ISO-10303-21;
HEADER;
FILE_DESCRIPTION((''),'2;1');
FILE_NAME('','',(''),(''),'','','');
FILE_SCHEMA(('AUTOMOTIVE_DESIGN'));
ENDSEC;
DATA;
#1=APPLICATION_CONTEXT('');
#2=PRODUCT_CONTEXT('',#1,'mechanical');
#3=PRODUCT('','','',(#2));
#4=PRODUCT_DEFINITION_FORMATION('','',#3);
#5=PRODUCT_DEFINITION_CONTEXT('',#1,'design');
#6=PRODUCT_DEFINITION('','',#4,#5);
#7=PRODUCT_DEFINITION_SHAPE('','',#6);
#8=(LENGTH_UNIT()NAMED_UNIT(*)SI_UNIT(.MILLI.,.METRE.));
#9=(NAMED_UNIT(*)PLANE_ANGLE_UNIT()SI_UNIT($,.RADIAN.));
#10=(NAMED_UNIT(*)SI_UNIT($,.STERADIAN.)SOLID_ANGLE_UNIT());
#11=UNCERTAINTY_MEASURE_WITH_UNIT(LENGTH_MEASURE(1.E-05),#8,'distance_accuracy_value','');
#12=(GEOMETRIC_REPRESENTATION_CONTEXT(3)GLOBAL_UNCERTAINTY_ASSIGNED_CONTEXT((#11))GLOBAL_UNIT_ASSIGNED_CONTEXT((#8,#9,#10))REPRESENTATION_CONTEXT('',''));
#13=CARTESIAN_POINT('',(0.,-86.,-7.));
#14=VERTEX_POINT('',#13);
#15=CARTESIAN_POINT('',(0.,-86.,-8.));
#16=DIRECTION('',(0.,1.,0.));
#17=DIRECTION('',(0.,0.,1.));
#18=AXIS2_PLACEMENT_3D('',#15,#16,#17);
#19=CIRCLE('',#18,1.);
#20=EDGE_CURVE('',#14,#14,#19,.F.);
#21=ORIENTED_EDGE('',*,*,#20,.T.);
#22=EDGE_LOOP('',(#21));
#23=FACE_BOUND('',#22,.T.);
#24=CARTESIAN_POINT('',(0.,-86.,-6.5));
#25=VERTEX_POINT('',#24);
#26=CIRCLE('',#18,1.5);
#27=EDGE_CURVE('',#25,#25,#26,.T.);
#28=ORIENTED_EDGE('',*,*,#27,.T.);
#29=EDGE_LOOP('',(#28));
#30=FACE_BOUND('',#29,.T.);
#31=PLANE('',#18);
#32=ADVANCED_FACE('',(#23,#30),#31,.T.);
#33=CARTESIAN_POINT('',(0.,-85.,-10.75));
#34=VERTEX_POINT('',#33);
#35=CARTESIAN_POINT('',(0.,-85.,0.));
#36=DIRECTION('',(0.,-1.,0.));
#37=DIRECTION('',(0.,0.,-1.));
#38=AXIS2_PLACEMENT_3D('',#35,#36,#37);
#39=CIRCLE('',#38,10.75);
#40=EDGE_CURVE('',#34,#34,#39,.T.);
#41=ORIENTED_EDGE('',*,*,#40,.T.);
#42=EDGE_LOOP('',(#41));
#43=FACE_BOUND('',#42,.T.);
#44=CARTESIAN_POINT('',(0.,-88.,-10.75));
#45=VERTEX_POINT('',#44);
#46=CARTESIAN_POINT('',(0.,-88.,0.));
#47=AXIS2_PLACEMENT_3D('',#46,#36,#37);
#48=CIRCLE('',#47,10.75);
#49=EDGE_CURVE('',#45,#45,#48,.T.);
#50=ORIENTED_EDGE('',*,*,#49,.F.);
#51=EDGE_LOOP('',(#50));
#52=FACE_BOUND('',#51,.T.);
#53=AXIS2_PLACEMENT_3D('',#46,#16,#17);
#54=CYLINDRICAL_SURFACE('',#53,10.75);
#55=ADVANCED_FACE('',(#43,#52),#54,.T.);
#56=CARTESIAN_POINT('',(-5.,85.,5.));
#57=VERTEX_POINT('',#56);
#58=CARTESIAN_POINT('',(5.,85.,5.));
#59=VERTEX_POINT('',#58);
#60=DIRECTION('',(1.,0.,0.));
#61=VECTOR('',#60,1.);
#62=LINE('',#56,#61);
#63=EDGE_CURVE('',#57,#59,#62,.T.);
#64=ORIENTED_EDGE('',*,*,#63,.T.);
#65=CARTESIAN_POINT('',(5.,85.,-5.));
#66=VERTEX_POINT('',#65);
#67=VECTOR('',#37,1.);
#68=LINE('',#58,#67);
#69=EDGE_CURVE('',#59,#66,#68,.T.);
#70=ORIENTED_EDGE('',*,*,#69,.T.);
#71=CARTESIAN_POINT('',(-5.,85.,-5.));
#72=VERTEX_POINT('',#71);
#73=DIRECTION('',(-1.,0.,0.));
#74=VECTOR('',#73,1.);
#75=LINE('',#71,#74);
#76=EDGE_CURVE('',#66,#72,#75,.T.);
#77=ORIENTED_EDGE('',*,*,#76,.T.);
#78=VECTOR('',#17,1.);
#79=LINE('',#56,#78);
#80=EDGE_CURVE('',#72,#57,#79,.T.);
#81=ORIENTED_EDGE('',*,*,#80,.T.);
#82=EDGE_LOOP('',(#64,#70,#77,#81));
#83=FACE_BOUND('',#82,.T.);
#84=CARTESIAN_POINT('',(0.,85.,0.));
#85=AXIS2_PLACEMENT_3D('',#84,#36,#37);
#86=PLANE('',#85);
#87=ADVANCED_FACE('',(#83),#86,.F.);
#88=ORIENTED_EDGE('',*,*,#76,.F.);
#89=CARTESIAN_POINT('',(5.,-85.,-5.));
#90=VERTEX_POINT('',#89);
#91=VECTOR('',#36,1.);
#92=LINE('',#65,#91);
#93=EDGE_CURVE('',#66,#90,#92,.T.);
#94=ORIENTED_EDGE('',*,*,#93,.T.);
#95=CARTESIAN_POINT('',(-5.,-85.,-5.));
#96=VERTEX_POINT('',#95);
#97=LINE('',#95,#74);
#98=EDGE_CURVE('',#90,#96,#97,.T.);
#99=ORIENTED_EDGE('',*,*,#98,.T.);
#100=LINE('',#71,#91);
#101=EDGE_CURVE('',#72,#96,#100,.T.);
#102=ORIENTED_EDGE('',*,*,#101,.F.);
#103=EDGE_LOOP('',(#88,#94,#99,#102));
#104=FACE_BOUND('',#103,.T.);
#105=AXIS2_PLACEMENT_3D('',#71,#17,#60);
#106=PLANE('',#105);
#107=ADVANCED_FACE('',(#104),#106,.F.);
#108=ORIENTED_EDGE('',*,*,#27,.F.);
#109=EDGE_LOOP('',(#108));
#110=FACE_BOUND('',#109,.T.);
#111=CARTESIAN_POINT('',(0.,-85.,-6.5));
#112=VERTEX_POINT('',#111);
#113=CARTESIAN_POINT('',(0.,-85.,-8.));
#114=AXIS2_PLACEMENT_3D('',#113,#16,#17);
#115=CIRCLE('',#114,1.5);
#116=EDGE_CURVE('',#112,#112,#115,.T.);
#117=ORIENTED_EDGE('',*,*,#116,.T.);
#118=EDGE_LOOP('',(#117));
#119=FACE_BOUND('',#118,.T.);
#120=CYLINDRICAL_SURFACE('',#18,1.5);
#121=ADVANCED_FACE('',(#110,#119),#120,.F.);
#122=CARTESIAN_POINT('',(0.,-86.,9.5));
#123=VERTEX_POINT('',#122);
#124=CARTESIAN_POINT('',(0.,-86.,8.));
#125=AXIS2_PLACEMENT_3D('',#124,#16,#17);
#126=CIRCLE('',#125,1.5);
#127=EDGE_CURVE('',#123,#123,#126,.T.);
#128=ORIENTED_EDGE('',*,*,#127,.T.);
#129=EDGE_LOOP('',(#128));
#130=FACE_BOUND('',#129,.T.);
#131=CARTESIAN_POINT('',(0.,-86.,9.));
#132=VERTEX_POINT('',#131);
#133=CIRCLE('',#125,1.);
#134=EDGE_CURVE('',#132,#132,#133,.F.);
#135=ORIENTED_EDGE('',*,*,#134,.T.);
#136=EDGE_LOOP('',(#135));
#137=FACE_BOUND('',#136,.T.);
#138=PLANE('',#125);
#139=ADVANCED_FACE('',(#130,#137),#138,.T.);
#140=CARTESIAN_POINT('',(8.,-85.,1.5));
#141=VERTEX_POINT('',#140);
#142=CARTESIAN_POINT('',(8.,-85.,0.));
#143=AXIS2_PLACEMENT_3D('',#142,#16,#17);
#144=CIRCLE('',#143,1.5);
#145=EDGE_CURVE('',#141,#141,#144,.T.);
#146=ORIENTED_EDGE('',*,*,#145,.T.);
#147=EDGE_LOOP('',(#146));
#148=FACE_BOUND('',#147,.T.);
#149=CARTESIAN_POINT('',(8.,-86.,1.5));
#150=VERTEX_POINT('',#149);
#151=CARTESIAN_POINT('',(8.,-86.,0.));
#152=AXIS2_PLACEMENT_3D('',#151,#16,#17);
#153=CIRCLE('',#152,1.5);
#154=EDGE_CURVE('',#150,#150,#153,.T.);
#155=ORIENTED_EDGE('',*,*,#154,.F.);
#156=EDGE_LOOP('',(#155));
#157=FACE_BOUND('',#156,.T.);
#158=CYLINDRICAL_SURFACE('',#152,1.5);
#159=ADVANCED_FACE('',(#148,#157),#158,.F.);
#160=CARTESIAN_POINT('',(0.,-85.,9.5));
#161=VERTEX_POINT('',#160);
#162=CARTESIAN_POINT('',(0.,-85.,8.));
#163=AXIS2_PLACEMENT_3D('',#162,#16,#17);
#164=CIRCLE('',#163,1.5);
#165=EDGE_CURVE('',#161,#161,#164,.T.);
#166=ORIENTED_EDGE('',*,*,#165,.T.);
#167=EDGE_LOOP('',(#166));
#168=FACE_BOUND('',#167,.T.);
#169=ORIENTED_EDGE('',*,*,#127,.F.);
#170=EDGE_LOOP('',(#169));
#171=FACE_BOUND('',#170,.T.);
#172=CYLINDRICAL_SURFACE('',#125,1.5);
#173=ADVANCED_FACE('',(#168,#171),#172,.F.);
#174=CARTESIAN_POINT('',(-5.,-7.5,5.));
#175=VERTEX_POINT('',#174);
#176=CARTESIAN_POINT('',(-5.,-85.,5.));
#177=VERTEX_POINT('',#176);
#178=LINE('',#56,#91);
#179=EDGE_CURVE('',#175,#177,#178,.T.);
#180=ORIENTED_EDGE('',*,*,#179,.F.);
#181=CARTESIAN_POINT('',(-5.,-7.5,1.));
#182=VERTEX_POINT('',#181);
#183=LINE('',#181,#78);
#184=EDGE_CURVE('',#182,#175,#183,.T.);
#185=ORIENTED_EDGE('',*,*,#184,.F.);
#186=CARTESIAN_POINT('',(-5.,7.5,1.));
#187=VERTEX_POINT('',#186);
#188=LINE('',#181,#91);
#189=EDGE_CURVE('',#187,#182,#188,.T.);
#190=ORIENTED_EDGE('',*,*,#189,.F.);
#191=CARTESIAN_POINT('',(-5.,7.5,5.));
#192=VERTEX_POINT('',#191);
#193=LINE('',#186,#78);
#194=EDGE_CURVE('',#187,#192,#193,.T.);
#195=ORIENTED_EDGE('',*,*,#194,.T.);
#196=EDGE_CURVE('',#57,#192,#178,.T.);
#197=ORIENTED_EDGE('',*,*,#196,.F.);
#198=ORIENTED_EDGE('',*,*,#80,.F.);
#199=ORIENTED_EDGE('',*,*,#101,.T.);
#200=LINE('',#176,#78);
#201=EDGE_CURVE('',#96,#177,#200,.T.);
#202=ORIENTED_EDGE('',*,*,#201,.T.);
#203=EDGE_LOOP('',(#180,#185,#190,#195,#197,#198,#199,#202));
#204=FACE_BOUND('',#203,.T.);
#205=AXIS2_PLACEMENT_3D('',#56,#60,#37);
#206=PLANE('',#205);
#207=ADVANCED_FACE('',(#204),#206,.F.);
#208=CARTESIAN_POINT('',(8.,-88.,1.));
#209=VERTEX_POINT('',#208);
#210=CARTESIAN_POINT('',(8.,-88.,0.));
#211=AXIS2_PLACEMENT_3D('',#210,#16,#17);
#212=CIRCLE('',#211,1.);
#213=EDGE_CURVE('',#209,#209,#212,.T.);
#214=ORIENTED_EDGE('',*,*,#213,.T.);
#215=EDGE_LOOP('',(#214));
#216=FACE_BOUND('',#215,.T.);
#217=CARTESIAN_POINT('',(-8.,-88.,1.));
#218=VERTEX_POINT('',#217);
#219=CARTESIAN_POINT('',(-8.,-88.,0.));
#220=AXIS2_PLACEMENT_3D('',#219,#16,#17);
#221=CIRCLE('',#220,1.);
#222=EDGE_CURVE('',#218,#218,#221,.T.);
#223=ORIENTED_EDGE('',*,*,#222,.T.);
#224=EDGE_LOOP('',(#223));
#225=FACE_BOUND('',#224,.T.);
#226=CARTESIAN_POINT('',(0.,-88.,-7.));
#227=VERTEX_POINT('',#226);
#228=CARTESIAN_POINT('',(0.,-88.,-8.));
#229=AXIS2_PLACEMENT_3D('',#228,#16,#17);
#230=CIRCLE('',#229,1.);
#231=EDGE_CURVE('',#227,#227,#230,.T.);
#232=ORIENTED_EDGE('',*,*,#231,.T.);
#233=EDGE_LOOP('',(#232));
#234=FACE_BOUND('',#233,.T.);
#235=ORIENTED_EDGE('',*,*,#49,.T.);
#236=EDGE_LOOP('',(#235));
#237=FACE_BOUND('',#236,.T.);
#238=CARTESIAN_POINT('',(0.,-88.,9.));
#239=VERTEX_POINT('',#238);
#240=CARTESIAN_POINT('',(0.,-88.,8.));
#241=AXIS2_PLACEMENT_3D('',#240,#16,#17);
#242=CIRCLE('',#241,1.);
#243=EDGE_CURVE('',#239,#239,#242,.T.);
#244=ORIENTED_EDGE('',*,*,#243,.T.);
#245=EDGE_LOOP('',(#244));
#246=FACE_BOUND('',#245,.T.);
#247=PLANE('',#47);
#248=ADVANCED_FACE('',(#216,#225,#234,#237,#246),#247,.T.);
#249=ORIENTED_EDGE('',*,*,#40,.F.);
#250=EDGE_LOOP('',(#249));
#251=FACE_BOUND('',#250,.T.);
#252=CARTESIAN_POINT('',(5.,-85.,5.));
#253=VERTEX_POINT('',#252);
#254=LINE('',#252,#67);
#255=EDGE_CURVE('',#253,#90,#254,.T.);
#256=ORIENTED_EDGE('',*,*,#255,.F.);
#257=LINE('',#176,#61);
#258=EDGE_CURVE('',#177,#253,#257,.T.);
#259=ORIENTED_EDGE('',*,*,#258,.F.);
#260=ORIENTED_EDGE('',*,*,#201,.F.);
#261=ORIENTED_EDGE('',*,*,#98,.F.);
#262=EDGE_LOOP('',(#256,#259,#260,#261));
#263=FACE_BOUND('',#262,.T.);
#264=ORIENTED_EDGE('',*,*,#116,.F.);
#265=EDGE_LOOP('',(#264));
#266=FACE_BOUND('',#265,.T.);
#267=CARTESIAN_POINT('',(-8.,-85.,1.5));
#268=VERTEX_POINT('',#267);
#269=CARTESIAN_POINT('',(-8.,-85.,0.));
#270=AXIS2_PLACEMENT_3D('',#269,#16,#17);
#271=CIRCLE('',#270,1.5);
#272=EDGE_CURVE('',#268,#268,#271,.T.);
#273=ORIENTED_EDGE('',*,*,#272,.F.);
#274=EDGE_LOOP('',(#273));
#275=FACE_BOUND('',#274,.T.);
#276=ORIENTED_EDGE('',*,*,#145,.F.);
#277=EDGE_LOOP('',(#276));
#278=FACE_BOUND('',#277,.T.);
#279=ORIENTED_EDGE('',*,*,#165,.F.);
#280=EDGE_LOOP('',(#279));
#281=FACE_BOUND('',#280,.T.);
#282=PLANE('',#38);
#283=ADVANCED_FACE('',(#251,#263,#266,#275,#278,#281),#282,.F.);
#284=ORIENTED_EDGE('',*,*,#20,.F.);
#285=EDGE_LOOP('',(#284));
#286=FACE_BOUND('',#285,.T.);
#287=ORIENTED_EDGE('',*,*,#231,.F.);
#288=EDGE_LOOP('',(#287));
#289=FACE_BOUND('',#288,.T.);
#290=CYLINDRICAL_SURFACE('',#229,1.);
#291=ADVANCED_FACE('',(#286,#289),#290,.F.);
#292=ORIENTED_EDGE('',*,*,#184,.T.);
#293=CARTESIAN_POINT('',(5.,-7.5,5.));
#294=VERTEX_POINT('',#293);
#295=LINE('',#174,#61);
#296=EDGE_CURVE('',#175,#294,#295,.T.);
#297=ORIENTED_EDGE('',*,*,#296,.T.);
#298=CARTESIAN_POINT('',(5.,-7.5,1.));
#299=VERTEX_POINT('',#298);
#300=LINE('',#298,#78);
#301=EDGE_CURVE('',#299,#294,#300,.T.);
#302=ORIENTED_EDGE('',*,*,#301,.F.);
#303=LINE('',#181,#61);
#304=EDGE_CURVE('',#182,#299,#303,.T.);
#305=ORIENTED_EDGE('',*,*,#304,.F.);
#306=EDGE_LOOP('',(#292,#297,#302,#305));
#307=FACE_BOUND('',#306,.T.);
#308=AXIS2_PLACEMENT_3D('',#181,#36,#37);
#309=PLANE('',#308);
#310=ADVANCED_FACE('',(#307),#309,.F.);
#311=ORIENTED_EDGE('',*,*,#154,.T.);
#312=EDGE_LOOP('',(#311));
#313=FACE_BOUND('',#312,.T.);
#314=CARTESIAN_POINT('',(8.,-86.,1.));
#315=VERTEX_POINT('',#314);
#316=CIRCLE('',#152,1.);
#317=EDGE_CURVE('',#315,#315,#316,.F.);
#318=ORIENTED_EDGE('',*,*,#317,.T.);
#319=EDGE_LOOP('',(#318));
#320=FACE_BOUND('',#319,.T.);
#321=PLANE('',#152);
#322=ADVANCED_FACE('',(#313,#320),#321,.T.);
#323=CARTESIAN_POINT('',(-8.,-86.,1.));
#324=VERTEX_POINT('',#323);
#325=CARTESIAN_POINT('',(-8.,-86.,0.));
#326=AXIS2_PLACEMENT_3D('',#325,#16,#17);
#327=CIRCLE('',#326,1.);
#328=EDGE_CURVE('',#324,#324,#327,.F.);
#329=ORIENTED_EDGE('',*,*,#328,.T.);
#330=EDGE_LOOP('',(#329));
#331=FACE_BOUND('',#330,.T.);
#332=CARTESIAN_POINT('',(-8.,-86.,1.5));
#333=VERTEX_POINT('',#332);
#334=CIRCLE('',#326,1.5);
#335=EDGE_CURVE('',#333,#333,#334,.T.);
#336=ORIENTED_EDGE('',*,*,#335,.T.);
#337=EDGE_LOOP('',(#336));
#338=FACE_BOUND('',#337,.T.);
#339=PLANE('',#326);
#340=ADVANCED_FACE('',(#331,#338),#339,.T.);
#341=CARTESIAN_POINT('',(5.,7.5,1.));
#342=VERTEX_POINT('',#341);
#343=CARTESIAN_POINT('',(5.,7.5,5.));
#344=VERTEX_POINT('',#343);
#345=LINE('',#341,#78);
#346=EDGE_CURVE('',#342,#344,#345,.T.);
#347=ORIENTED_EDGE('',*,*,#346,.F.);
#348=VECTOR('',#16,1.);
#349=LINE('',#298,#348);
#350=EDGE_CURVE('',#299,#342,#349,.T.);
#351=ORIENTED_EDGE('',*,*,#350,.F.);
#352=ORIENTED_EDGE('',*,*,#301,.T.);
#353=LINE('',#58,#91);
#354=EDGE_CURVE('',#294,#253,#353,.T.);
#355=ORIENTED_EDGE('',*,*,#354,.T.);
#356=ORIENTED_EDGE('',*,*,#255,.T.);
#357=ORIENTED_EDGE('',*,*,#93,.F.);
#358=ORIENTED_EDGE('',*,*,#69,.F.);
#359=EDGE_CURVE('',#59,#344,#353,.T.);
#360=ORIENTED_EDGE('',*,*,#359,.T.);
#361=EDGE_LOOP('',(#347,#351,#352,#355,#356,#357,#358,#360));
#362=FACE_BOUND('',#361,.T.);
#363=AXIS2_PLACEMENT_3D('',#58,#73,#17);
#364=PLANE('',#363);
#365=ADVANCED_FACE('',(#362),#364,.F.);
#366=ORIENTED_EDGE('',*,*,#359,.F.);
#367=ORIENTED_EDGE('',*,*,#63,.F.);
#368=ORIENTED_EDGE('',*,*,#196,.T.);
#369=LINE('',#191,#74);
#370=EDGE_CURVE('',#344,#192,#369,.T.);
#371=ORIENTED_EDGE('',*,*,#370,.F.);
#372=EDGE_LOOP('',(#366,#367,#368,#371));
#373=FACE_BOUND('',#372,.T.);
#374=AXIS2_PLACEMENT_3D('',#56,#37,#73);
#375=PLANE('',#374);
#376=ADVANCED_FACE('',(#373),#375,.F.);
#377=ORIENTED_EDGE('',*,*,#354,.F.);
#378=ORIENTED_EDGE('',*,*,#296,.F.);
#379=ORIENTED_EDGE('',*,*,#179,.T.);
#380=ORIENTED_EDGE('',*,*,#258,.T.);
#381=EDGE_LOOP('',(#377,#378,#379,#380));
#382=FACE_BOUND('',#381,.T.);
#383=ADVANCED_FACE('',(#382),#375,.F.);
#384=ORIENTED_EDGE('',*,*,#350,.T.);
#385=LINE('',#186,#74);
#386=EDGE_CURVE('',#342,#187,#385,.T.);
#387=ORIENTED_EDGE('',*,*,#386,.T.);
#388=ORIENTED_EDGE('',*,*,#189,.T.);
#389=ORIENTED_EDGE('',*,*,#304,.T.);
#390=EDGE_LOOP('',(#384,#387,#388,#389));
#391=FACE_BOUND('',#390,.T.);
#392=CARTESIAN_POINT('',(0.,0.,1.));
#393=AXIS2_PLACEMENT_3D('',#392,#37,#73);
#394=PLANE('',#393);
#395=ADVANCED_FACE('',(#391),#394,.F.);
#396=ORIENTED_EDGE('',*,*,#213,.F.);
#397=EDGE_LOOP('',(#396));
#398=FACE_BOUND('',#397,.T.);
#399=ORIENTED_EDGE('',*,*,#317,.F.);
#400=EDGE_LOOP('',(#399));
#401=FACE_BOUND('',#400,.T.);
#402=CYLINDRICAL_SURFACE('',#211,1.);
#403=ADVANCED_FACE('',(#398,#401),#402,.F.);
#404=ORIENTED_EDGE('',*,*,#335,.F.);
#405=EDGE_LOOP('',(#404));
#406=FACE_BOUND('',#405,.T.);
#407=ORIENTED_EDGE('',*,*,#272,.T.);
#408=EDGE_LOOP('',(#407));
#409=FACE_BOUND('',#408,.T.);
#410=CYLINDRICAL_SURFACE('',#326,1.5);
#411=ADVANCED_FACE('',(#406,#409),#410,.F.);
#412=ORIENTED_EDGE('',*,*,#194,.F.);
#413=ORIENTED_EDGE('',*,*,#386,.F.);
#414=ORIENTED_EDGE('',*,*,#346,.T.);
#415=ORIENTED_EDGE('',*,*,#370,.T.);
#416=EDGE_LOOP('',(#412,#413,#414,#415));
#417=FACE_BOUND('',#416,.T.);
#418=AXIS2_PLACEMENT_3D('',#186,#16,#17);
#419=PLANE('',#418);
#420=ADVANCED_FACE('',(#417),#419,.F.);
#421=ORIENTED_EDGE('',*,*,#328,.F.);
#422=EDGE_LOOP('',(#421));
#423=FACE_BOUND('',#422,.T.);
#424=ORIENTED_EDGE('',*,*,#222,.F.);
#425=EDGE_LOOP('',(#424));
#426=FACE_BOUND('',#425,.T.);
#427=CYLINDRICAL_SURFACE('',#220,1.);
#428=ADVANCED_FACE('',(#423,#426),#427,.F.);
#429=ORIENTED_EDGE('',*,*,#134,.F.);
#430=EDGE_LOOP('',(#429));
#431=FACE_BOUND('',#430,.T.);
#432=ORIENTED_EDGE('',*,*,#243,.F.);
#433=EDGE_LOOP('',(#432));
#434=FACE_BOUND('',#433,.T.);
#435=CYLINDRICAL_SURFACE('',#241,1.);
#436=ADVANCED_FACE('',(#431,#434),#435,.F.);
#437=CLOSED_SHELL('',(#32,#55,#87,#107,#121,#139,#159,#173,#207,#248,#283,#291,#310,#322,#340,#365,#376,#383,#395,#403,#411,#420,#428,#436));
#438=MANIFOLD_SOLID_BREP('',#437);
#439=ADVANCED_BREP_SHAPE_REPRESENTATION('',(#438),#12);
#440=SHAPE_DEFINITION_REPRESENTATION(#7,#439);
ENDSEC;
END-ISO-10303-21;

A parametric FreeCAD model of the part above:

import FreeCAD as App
import Part
import Sketcher

V = App.Vector

doc = App.newDocument("Part")
body = doc.addObject("PartDesign::Body", "Body")

# Sketch on XZ plane
sketch1 = doc.addObject("Sketcher::SketchObject", "Sketch")
body.addObject(sketch1)
sketch1.AttachmentSupport = (doc.XZ_Plane, [""])
sketch1.MapMode = "FlatFace"
sketch1.addGeometry([
    Part.LineSegment(V(-5, -5, 0), V(-5, 5, 0)),
    Part.LineSegment(V(-5, 5, 0), V(5, 5, 0)),
    Part.LineSegment(V(5, 5, 0), V(5, -5, 0)),
    Part.LineSegment(V(5, -5, 0), V(-5, -5, 0)),
], False)
sketch1.addConstraint([
    Sketcher.Constraint("Coincident", 0, 2, 1, 1),
    Sketcher.Constraint("Coincident", 1, 2, 2, 1),
    Sketcher.Constraint("Coincident", 2, 2, 3, 1),
    Sketcher.Constraint("Coincident", 3, 2, 0, 1),
    Sketcher.Constraint("Vertical", 0),
    Sketcher.Constraint("Horizontal", 1),
    Sketcher.Constraint("Vertical", 2),
    Sketcher.Constraint("Horizontal", 3),
    Sketcher.Constraint("Symmetric", 0, 2, 2, 2, -1, 1),
    Sketcher.Constraint("Equal", 3, 0),
    Sketcher.Constraint("DistanceX", 1, 1, 1, 2, 10.0),
])
pad1 = doc.addObject("PartDesign::Pad", "Pad")
body.addObject(pad1)
pad1.Profile = sketch1
pad1.Length = 170
pad1.Midplane = True

# Sketch on XY plane
sketch2 = doc.addObject("Sketcher::SketchObject", "Sketch001")
body.addObject(sketch2)
sketch2.AttachmentSupport = (doc.XY_Plane, [""])
sketch2.MapMode = "FlatFace"
sketch2.AttachmentOffset = App.Placement(V(0, 0, 5), App.Rotation())
sketch2.addGeometry([
    Part.LineSegment(V(-5, 8, 0), V(-5, -8, 0)),
    Part.LineSegment(V(-5, -8, 0), V(5, -8, 0)),
    Part.LineSegment(V(5, -8, 0), V(5, 8, 0)),
    Part.LineSegment(V(5, 8, 0), V(-5, 8, 0)),
], False)
sketch2.addConstraint([
    Sketcher.Constraint("Coincident", 0, 2, 1, 1),
    Sketcher.Constraint("Coincident", 1, 2, 2, 1),
    Sketcher.Constraint("Coincident", 2, 2, 3, 1),
    Sketcher.Constraint("Coincident", 3, 2, 0, 1),
    Sketcher.Constraint("Vertical", 0),
    Sketcher.Constraint("Horizontal", 1),
    Sketcher.Constraint("Vertical", 2),
    Sketcher.Constraint("Horizontal", 3),
    Sketcher.Constraint("Symmetric", 0, 2, 2, 2, -1, 1),
    Sketcher.Constraint("DistanceX", 1, 1, 1, 2, 10.0),
    Sketcher.Constraint("DistanceY", 0, 2, 0, 1, 15.0),
])
pocket1 = doc.addObject("PartDesign::Pocket", "Pocket")
body.addObject(pocket1)
pocket1.Profile = sketch2
pocket1.Length = 4

# Sketch on XZ plane
sketch3 = doc.addObject("Sketcher::SketchObject", "Sketch002")
body.addObject(sketch3)
sketch3.AttachmentSupport = (doc.XZ_Plane, [""])
sketch3.MapMode = "FlatFace"
sketch3.AttachmentOffset = App.Placement(V(0, 0, 85), App.Rotation())
sketch3.addGeometry(Part.Circle(V(0, 0, 0), V(0, 0, 1), 11), False)
sketch3.addConstraint([
    Sketcher.Constraint("Coincident", 0, 3, -1, 1),
    Sketcher.Constraint("Diameter", 0, 21.5),
])
pad2 = doc.addObject("PartDesign::Pad", "Pad001")
body.addObject(pad2)
pad2.Profile = sketch3
pad2.Length = 3

# Sketch on XZ plane
sketch4 = doc.addObject("Sketcher::SketchObject", "Sketch003")
body.addObject(sketch4)
sketch4.AttachmentSupport = (doc.XZ_Plane, [""])
sketch4.MapMode = "FlatFace"
sketch4.AttachmentOffset = App.Placement(V(0, 0, 85), App.Rotation())
sketch4.addGeometry([
    Part.Circle(V(8, 0, 0), V(0, 0, 1), 1),
    Part.Circle(V(0, 8, 0), V(0, 0, 1), 1),
    Part.Circle(V(-8, 0, 0), V(0, 0, 1), 1),
    Part.Circle(V(0, -8, 0), V(0, 0, 1), 1),
], False)
sketch4.addConstraint([
    Sketcher.Constraint("Equal", 0, 1),
    Sketcher.Constraint("Equal", 1, 2),
    Sketcher.Constraint("Equal", 2, 3),
    Sketcher.Constraint("Symmetric", 0, 3, 2, 3, -1, 1),
    Sketcher.Constraint("Symmetric", 1, 3, 3, 3, -1, 1),
    Sketcher.Constraint("PointOnObject", 0, 3, -1),
    Sketcher.Constraint("PointOnObject", 1, 3, -2),
    Sketcher.Constraint("Diameter", 0, 2.0),
    Sketcher.Constraint("DistanceX", -1, 1, 0, 3, 8.0),
    Sketcher.Constraint("DistanceY", -1, 1, 1, 3, 8.0),
])
pocket2 = doc.addObject("PartDesign::Pocket", "Pocket001")
body.addObject(pocket2)
pocket2.Profile = sketch4
pocket2.Length = 3
pocket2.Reversed = True

# Sketch on XZ plane
sketch5 = doc.addObject("Sketcher::SketchObject", "Sketch004")
body.addObject(sketch5)
sketch5.AttachmentSupport = (doc.XZ_Plane, [""])
sketch5.MapMode = "FlatFace"
sketch5.AttachmentOffset = App.Placement(V(0, 0, 85), App.Rotation())
sketch5.addGeometry([
    Part.Circle(V(8, 0, 0), V(0, 0, 1), 1.5),
    Part.Circle(V(0, 8, 0), V(0, 0, 1), 1.5),
    Part.Circle(V(-8, 0, 0), V(0, 0, 1), 1.5),
    Part.Circle(V(0, -8, 0), V(0, 0, 1), 1.5),
], False)
sketch5.addConstraint([
    Sketcher.Constraint("Equal", 0, 1),
    Sketcher.Constraint("Equal", 1, 2),
    Sketcher.Constraint("Equal", 2, 3),
    Sketcher.Constraint("Symmetric", 0, 3, 2, 3, -1, 1),
    Sketcher.Constraint("Symmetric", 1, 3, 3, 3, -1, 1),
    Sketcher.Constraint("PointOnObject", 0, 3, -1),
    Sketcher.Constraint("PointOnObject", 1, 3, -2),
    Sketcher.Constraint("Diameter", 0, 3.0),
    Sketcher.Constraint("DistanceX", -1, 1, 0, 3, 8.0),
    Sketcher.Constraint("DistanceY", -1, 1, 1, 3, 8.0),
])
pocket3 = doc.addObject("PartDesign::Pocket", "Pocket002")
body.addObject(pocket3)
pocket3.Profile = sketch5
pocket3.Length = 1
pocket3.Reversed = True

doc.recompute()
